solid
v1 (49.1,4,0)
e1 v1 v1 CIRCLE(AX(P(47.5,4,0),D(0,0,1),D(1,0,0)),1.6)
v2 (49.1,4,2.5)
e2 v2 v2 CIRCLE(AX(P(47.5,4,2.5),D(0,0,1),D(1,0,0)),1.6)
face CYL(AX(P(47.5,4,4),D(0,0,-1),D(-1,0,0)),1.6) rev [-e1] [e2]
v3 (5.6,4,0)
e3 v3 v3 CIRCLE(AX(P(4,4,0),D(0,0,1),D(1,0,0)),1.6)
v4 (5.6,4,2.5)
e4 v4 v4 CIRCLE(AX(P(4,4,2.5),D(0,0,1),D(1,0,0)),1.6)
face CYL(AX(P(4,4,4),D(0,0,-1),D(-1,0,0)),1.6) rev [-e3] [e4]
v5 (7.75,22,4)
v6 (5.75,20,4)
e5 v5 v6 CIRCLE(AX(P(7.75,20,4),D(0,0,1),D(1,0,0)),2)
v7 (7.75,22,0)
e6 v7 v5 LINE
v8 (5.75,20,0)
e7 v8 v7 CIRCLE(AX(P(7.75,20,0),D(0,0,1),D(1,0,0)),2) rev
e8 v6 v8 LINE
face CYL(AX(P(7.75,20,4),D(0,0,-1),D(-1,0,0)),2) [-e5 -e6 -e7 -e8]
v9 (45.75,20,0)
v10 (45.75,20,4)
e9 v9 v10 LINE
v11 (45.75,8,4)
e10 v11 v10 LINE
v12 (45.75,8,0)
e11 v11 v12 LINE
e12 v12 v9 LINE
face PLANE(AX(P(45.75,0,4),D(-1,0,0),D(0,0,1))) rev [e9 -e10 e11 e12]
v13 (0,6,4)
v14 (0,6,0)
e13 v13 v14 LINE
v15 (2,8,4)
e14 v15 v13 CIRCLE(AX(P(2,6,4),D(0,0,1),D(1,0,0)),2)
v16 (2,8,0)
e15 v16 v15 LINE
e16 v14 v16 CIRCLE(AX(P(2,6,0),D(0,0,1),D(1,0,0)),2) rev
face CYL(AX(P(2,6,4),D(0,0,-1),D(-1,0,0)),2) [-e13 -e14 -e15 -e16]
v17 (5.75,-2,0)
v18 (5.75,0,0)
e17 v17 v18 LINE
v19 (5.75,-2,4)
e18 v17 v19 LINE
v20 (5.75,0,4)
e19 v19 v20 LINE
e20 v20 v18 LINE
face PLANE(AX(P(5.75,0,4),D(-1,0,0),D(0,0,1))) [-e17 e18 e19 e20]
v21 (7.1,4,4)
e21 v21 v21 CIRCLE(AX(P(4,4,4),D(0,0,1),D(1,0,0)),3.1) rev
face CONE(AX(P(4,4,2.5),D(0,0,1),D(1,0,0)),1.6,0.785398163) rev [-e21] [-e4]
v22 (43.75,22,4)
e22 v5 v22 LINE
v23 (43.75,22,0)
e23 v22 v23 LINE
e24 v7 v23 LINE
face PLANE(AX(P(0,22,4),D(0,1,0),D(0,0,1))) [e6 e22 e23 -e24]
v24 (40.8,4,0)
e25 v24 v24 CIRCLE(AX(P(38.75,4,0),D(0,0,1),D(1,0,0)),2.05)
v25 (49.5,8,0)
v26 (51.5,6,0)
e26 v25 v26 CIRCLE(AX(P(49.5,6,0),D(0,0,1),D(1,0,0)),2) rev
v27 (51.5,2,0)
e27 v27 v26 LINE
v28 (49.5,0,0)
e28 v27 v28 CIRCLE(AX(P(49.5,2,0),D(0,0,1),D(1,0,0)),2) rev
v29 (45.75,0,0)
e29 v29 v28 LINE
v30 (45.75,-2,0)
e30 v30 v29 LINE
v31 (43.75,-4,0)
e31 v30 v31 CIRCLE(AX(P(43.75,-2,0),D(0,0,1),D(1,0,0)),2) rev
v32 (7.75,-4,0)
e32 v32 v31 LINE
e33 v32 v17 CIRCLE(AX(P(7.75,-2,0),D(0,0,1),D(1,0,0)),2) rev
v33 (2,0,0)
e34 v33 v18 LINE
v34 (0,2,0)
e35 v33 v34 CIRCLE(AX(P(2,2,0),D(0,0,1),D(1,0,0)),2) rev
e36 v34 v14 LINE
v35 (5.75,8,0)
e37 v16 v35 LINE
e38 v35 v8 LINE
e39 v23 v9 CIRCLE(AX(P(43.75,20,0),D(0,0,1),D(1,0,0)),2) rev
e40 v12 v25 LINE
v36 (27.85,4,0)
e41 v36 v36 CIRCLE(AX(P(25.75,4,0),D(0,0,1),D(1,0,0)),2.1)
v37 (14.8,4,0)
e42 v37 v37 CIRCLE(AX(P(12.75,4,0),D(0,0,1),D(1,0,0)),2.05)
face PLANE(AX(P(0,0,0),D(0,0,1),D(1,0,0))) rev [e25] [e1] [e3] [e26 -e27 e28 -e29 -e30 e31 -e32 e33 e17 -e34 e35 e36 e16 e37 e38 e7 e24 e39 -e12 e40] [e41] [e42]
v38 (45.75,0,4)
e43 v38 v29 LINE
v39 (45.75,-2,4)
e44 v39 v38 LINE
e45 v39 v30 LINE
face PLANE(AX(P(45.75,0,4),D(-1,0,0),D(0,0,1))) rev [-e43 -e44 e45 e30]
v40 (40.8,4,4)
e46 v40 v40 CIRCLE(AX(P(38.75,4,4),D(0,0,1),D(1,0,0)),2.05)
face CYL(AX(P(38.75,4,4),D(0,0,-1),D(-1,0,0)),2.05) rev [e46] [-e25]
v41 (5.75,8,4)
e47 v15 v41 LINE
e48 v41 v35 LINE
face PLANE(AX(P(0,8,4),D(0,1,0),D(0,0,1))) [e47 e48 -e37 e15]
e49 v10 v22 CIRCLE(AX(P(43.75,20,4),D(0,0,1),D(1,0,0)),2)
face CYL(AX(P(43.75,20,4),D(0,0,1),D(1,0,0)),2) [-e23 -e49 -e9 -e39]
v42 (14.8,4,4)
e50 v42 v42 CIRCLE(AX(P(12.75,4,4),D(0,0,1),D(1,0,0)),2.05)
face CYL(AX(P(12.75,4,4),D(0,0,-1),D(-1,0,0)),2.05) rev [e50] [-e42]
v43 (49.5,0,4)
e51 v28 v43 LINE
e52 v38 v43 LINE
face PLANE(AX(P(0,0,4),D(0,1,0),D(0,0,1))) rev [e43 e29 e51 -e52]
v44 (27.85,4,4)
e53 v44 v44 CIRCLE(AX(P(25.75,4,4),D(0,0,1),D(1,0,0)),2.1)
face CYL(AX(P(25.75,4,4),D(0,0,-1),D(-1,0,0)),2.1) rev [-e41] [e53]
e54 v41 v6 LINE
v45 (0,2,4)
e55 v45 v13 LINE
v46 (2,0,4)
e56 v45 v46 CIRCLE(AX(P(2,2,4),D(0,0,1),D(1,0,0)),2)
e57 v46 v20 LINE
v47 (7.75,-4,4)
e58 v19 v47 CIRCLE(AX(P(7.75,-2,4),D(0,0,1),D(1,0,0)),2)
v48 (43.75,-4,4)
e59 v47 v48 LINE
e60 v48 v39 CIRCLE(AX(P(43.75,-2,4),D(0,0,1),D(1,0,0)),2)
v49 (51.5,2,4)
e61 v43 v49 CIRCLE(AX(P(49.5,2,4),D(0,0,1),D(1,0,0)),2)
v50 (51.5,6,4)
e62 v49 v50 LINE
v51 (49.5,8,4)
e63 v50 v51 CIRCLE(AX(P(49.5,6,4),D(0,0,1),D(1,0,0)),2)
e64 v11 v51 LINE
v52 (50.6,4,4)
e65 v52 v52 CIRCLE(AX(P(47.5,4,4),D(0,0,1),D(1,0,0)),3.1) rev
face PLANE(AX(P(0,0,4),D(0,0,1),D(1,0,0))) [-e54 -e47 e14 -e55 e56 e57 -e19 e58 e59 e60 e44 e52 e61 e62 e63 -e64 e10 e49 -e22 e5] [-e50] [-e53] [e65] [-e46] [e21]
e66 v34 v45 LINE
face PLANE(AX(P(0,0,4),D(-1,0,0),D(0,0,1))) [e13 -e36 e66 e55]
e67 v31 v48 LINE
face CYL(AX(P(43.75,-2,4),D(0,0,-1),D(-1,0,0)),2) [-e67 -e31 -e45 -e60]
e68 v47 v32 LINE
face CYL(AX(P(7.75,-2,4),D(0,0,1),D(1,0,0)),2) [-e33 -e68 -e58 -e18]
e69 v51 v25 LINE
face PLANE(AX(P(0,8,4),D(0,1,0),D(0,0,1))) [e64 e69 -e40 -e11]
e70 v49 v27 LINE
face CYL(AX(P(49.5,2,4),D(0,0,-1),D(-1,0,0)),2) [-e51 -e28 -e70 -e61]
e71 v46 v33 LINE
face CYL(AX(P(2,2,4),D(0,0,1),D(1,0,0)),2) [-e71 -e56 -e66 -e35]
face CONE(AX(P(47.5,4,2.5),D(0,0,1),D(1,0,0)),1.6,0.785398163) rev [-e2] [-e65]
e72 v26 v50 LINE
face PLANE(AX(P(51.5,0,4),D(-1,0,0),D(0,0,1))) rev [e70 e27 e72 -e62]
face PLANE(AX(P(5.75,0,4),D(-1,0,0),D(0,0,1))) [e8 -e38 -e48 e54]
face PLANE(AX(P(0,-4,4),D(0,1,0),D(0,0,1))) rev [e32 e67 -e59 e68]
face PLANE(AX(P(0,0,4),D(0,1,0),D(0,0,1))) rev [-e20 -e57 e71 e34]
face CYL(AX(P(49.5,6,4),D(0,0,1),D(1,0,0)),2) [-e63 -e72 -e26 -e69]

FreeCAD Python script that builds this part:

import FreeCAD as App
import Part
import Sketcher
Q = App.Units.Quantity


def edges_at(feature, points):
    """Names of the edges that pass closest to the given points."""
    edges = feature.Shape.Edges
    near = lambda p: min(range(len(edges)), key=lambda i: edges[i].distToShape(Part.Vertex(*p))[0])
    return sorted({f"Edge{near(p) + 1}" for p in points})


def add_polygon(sketch, points):
    """Adds a closed chain of lines whose ends are joined by coincident constraints."""
    first, n = sketch.GeometryCount, len(points)
    for a, b in zip(points, points[1:] + points[:1]):
        sketch.addGeometry(Part.LineSegment(App.Vector(*a, 0), App.Vector(*b, 0)), False)
    for i in range(n):
        sketch.addConstraint(Sketcher.Constraint("Coincident", first + i, 2, first + (i + 1) % n, 1))

doc = App.newDocument("Part")
body = doc.addObject("PartDesign::Body", "Body")

sketch1 = doc.addObject("Sketcher::SketchObject", "Sketch")
body.addObject(sketch1)
sketch1.AttachmentSupport = (doc.XY_Plane, [""])
sketch1.MapMode = "FlatFace"
add_polygon(sketch1, [(0, 8), (0, 0), (5.8, 0), (5.8, -4), (45.8, -4), (45.8, 0), (51.5, 0), (51.5, 8), (45.8, 8), (45.8, 22), (5.8, 22), (5.8, 8)])
sketch1.addGeometry(Part.Circle(App.Vector(4, 4, 0), App.Vector(0, 0, 1), 1.6), False)
sketch1.addGeometry(Part.Circle(App.Vector(12.8, 4, 0), App.Vector(0, 0, 1), 2), False)
sketch1.addGeometry(Part.Circle(App.Vector(25.8, 4, 0), App.Vector(0, 0, 1), 2.1), False)
sketch1.addGeometry(Part.Circle(App.Vector(38.8, 4, 0), App.Vector(0, 0, 1), 2), False)
sketch1.addGeometry(Part.Circle(App.Vector(47.5, 4, 0), App.Vector(0, 0, 1), 1.6), False)
sketch1.addConstraint([
    Sketcher.Constraint("Vertical", 0),
    Sketcher.Constraint("Horizontal", 1),
    Sketcher.Constraint("Vertical", 2),
    Sketcher.Constraint("Horizontal", 3),
    Sketcher.Constraint("Vertical", 4),
    Sketcher.Constraint("Horizontal", 5),
    Sketcher.Constraint("Vertical", 6),
    Sketcher.Constraint("Horizontal", 7),
    Sketcher.Constraint("Vertical", 8),
    Sketcher.Constraint("Horizontal", 9),
    Sketcher.Constraint("Vertical", 10),
    Sketcher.Constraint("Horizontal", 11),
    Sketcher.Constraint("Coincident", 0, 2, -1, 1),
    Sketcher.Constraint("Equal", 13, 15),
    Sketcher.Constraint("Equal", 12, 16),
    Sketcher.Constraint("PointOnObject", 4, 2, -1),
    Sketcher.Constraint("Horizontal", 12, 3, 13, 3),
    Sketcher.Constraint("Horizontal", 13, 3, 14, 3),
    Sketcher.Constraint("Horizontal", 14, 3, 15, 3),
    Sketcher.Constraint("Horizontal", 15, 3, 16, 3),
    Sketcher.Constraint("Horizontal", 7, 2, 10, 2),
    Sketcher.Constraint("Vertical", 4, 2, 7, 2),
    Sketcher.Constraint("Vertical", 2, 2, 9, 2),
    Sketcher.Constraint("Equal", 1, 5),
    Sketcher.Constraint("Diameter", 12, Q("3.2 mm")),
    Sketcher.Constraint("Diameter", 13, Q("4.1 mm")),
    Sketcher.Constraint("Diameter", 14, Q("4.2 mm")),
    Sketcher.Constraint("DistanceX", 3, 1, 3, 2, Q("40 mm")),
    Sketcher.Constraint("DistanceY", 0, 2, 0, 1, Q("8 mm")),
    Sketcher.Constraint("DistanceY", 2, 2, 2, 1, Q("4 mm")),
    Sketcher.Constraint("DistanceY", 8, 1, 8, 2, Q("14 mm")),
    Sketcher.Constraint("DistanceX", -1, 1, 12, 3, Q("4 mm")),
    Sketcher.Constraint("DistanceY", -1, 1, 12, 3, Q("4 mm")),
    Sketcher.Constraint("DistanceX", 13, 3, 14, 3, Q("13 mm")),
    Sketcher.Constraint("DistanceX", 14, 3, 15, 3, Q("13 mm")),
    Sketcher.Constraint("DistanceX", 1, 2, 13, 3, Q("7 mm")),
    Sketcher.Constraint("DistanceX", 16, 3, 5, 2, Q("4 mm")),
    Sketcher.Constraint("DistanceX", 1, 1, 1, 2, Q("5.75 mm")),
])
pad1 = doc.addObject("PartDesign::Pad", "Pad")
body.addObject(pad1)
pad1.Profile = sketch1
pad1.Length = 4
doc.recompute()

fillet = doc.addObject("PartDesign::Fillet", "Fillet")
body.addObject(fillet)
fillet.Base = (pad1, edges_at(pad1, [
    (0, 0, 2),
    (0, 8, 2),
    (51.5, 8, 2),
    (51.5, 0, 2),
]))
fillet.Radius = 2
doc.recompute()

chamfer = doc.addObject("PartDesign::Chamfer", "Chamfer")
body.addObject(chamfer)
chamfer.Base = (fillet, edges_at(fillet, [(2.4, 4, 4), (45.9, 4, 4)]))
chamfer.Size = 1.5
doc.recompute()

fillet2 = doc.addObject("PartDesign::Fillet", "Fillet001")
body.addObject(fillet2)
fillet2.Base = (chamfer, edges_at(chamfer, [
    (5.75, 22, 2),
    (45.75, 22, 2),
    (45.75, -4, 2),
    (5.75, -4, 2),
]))
fillet2.Radius = 2

doc.recompute()
